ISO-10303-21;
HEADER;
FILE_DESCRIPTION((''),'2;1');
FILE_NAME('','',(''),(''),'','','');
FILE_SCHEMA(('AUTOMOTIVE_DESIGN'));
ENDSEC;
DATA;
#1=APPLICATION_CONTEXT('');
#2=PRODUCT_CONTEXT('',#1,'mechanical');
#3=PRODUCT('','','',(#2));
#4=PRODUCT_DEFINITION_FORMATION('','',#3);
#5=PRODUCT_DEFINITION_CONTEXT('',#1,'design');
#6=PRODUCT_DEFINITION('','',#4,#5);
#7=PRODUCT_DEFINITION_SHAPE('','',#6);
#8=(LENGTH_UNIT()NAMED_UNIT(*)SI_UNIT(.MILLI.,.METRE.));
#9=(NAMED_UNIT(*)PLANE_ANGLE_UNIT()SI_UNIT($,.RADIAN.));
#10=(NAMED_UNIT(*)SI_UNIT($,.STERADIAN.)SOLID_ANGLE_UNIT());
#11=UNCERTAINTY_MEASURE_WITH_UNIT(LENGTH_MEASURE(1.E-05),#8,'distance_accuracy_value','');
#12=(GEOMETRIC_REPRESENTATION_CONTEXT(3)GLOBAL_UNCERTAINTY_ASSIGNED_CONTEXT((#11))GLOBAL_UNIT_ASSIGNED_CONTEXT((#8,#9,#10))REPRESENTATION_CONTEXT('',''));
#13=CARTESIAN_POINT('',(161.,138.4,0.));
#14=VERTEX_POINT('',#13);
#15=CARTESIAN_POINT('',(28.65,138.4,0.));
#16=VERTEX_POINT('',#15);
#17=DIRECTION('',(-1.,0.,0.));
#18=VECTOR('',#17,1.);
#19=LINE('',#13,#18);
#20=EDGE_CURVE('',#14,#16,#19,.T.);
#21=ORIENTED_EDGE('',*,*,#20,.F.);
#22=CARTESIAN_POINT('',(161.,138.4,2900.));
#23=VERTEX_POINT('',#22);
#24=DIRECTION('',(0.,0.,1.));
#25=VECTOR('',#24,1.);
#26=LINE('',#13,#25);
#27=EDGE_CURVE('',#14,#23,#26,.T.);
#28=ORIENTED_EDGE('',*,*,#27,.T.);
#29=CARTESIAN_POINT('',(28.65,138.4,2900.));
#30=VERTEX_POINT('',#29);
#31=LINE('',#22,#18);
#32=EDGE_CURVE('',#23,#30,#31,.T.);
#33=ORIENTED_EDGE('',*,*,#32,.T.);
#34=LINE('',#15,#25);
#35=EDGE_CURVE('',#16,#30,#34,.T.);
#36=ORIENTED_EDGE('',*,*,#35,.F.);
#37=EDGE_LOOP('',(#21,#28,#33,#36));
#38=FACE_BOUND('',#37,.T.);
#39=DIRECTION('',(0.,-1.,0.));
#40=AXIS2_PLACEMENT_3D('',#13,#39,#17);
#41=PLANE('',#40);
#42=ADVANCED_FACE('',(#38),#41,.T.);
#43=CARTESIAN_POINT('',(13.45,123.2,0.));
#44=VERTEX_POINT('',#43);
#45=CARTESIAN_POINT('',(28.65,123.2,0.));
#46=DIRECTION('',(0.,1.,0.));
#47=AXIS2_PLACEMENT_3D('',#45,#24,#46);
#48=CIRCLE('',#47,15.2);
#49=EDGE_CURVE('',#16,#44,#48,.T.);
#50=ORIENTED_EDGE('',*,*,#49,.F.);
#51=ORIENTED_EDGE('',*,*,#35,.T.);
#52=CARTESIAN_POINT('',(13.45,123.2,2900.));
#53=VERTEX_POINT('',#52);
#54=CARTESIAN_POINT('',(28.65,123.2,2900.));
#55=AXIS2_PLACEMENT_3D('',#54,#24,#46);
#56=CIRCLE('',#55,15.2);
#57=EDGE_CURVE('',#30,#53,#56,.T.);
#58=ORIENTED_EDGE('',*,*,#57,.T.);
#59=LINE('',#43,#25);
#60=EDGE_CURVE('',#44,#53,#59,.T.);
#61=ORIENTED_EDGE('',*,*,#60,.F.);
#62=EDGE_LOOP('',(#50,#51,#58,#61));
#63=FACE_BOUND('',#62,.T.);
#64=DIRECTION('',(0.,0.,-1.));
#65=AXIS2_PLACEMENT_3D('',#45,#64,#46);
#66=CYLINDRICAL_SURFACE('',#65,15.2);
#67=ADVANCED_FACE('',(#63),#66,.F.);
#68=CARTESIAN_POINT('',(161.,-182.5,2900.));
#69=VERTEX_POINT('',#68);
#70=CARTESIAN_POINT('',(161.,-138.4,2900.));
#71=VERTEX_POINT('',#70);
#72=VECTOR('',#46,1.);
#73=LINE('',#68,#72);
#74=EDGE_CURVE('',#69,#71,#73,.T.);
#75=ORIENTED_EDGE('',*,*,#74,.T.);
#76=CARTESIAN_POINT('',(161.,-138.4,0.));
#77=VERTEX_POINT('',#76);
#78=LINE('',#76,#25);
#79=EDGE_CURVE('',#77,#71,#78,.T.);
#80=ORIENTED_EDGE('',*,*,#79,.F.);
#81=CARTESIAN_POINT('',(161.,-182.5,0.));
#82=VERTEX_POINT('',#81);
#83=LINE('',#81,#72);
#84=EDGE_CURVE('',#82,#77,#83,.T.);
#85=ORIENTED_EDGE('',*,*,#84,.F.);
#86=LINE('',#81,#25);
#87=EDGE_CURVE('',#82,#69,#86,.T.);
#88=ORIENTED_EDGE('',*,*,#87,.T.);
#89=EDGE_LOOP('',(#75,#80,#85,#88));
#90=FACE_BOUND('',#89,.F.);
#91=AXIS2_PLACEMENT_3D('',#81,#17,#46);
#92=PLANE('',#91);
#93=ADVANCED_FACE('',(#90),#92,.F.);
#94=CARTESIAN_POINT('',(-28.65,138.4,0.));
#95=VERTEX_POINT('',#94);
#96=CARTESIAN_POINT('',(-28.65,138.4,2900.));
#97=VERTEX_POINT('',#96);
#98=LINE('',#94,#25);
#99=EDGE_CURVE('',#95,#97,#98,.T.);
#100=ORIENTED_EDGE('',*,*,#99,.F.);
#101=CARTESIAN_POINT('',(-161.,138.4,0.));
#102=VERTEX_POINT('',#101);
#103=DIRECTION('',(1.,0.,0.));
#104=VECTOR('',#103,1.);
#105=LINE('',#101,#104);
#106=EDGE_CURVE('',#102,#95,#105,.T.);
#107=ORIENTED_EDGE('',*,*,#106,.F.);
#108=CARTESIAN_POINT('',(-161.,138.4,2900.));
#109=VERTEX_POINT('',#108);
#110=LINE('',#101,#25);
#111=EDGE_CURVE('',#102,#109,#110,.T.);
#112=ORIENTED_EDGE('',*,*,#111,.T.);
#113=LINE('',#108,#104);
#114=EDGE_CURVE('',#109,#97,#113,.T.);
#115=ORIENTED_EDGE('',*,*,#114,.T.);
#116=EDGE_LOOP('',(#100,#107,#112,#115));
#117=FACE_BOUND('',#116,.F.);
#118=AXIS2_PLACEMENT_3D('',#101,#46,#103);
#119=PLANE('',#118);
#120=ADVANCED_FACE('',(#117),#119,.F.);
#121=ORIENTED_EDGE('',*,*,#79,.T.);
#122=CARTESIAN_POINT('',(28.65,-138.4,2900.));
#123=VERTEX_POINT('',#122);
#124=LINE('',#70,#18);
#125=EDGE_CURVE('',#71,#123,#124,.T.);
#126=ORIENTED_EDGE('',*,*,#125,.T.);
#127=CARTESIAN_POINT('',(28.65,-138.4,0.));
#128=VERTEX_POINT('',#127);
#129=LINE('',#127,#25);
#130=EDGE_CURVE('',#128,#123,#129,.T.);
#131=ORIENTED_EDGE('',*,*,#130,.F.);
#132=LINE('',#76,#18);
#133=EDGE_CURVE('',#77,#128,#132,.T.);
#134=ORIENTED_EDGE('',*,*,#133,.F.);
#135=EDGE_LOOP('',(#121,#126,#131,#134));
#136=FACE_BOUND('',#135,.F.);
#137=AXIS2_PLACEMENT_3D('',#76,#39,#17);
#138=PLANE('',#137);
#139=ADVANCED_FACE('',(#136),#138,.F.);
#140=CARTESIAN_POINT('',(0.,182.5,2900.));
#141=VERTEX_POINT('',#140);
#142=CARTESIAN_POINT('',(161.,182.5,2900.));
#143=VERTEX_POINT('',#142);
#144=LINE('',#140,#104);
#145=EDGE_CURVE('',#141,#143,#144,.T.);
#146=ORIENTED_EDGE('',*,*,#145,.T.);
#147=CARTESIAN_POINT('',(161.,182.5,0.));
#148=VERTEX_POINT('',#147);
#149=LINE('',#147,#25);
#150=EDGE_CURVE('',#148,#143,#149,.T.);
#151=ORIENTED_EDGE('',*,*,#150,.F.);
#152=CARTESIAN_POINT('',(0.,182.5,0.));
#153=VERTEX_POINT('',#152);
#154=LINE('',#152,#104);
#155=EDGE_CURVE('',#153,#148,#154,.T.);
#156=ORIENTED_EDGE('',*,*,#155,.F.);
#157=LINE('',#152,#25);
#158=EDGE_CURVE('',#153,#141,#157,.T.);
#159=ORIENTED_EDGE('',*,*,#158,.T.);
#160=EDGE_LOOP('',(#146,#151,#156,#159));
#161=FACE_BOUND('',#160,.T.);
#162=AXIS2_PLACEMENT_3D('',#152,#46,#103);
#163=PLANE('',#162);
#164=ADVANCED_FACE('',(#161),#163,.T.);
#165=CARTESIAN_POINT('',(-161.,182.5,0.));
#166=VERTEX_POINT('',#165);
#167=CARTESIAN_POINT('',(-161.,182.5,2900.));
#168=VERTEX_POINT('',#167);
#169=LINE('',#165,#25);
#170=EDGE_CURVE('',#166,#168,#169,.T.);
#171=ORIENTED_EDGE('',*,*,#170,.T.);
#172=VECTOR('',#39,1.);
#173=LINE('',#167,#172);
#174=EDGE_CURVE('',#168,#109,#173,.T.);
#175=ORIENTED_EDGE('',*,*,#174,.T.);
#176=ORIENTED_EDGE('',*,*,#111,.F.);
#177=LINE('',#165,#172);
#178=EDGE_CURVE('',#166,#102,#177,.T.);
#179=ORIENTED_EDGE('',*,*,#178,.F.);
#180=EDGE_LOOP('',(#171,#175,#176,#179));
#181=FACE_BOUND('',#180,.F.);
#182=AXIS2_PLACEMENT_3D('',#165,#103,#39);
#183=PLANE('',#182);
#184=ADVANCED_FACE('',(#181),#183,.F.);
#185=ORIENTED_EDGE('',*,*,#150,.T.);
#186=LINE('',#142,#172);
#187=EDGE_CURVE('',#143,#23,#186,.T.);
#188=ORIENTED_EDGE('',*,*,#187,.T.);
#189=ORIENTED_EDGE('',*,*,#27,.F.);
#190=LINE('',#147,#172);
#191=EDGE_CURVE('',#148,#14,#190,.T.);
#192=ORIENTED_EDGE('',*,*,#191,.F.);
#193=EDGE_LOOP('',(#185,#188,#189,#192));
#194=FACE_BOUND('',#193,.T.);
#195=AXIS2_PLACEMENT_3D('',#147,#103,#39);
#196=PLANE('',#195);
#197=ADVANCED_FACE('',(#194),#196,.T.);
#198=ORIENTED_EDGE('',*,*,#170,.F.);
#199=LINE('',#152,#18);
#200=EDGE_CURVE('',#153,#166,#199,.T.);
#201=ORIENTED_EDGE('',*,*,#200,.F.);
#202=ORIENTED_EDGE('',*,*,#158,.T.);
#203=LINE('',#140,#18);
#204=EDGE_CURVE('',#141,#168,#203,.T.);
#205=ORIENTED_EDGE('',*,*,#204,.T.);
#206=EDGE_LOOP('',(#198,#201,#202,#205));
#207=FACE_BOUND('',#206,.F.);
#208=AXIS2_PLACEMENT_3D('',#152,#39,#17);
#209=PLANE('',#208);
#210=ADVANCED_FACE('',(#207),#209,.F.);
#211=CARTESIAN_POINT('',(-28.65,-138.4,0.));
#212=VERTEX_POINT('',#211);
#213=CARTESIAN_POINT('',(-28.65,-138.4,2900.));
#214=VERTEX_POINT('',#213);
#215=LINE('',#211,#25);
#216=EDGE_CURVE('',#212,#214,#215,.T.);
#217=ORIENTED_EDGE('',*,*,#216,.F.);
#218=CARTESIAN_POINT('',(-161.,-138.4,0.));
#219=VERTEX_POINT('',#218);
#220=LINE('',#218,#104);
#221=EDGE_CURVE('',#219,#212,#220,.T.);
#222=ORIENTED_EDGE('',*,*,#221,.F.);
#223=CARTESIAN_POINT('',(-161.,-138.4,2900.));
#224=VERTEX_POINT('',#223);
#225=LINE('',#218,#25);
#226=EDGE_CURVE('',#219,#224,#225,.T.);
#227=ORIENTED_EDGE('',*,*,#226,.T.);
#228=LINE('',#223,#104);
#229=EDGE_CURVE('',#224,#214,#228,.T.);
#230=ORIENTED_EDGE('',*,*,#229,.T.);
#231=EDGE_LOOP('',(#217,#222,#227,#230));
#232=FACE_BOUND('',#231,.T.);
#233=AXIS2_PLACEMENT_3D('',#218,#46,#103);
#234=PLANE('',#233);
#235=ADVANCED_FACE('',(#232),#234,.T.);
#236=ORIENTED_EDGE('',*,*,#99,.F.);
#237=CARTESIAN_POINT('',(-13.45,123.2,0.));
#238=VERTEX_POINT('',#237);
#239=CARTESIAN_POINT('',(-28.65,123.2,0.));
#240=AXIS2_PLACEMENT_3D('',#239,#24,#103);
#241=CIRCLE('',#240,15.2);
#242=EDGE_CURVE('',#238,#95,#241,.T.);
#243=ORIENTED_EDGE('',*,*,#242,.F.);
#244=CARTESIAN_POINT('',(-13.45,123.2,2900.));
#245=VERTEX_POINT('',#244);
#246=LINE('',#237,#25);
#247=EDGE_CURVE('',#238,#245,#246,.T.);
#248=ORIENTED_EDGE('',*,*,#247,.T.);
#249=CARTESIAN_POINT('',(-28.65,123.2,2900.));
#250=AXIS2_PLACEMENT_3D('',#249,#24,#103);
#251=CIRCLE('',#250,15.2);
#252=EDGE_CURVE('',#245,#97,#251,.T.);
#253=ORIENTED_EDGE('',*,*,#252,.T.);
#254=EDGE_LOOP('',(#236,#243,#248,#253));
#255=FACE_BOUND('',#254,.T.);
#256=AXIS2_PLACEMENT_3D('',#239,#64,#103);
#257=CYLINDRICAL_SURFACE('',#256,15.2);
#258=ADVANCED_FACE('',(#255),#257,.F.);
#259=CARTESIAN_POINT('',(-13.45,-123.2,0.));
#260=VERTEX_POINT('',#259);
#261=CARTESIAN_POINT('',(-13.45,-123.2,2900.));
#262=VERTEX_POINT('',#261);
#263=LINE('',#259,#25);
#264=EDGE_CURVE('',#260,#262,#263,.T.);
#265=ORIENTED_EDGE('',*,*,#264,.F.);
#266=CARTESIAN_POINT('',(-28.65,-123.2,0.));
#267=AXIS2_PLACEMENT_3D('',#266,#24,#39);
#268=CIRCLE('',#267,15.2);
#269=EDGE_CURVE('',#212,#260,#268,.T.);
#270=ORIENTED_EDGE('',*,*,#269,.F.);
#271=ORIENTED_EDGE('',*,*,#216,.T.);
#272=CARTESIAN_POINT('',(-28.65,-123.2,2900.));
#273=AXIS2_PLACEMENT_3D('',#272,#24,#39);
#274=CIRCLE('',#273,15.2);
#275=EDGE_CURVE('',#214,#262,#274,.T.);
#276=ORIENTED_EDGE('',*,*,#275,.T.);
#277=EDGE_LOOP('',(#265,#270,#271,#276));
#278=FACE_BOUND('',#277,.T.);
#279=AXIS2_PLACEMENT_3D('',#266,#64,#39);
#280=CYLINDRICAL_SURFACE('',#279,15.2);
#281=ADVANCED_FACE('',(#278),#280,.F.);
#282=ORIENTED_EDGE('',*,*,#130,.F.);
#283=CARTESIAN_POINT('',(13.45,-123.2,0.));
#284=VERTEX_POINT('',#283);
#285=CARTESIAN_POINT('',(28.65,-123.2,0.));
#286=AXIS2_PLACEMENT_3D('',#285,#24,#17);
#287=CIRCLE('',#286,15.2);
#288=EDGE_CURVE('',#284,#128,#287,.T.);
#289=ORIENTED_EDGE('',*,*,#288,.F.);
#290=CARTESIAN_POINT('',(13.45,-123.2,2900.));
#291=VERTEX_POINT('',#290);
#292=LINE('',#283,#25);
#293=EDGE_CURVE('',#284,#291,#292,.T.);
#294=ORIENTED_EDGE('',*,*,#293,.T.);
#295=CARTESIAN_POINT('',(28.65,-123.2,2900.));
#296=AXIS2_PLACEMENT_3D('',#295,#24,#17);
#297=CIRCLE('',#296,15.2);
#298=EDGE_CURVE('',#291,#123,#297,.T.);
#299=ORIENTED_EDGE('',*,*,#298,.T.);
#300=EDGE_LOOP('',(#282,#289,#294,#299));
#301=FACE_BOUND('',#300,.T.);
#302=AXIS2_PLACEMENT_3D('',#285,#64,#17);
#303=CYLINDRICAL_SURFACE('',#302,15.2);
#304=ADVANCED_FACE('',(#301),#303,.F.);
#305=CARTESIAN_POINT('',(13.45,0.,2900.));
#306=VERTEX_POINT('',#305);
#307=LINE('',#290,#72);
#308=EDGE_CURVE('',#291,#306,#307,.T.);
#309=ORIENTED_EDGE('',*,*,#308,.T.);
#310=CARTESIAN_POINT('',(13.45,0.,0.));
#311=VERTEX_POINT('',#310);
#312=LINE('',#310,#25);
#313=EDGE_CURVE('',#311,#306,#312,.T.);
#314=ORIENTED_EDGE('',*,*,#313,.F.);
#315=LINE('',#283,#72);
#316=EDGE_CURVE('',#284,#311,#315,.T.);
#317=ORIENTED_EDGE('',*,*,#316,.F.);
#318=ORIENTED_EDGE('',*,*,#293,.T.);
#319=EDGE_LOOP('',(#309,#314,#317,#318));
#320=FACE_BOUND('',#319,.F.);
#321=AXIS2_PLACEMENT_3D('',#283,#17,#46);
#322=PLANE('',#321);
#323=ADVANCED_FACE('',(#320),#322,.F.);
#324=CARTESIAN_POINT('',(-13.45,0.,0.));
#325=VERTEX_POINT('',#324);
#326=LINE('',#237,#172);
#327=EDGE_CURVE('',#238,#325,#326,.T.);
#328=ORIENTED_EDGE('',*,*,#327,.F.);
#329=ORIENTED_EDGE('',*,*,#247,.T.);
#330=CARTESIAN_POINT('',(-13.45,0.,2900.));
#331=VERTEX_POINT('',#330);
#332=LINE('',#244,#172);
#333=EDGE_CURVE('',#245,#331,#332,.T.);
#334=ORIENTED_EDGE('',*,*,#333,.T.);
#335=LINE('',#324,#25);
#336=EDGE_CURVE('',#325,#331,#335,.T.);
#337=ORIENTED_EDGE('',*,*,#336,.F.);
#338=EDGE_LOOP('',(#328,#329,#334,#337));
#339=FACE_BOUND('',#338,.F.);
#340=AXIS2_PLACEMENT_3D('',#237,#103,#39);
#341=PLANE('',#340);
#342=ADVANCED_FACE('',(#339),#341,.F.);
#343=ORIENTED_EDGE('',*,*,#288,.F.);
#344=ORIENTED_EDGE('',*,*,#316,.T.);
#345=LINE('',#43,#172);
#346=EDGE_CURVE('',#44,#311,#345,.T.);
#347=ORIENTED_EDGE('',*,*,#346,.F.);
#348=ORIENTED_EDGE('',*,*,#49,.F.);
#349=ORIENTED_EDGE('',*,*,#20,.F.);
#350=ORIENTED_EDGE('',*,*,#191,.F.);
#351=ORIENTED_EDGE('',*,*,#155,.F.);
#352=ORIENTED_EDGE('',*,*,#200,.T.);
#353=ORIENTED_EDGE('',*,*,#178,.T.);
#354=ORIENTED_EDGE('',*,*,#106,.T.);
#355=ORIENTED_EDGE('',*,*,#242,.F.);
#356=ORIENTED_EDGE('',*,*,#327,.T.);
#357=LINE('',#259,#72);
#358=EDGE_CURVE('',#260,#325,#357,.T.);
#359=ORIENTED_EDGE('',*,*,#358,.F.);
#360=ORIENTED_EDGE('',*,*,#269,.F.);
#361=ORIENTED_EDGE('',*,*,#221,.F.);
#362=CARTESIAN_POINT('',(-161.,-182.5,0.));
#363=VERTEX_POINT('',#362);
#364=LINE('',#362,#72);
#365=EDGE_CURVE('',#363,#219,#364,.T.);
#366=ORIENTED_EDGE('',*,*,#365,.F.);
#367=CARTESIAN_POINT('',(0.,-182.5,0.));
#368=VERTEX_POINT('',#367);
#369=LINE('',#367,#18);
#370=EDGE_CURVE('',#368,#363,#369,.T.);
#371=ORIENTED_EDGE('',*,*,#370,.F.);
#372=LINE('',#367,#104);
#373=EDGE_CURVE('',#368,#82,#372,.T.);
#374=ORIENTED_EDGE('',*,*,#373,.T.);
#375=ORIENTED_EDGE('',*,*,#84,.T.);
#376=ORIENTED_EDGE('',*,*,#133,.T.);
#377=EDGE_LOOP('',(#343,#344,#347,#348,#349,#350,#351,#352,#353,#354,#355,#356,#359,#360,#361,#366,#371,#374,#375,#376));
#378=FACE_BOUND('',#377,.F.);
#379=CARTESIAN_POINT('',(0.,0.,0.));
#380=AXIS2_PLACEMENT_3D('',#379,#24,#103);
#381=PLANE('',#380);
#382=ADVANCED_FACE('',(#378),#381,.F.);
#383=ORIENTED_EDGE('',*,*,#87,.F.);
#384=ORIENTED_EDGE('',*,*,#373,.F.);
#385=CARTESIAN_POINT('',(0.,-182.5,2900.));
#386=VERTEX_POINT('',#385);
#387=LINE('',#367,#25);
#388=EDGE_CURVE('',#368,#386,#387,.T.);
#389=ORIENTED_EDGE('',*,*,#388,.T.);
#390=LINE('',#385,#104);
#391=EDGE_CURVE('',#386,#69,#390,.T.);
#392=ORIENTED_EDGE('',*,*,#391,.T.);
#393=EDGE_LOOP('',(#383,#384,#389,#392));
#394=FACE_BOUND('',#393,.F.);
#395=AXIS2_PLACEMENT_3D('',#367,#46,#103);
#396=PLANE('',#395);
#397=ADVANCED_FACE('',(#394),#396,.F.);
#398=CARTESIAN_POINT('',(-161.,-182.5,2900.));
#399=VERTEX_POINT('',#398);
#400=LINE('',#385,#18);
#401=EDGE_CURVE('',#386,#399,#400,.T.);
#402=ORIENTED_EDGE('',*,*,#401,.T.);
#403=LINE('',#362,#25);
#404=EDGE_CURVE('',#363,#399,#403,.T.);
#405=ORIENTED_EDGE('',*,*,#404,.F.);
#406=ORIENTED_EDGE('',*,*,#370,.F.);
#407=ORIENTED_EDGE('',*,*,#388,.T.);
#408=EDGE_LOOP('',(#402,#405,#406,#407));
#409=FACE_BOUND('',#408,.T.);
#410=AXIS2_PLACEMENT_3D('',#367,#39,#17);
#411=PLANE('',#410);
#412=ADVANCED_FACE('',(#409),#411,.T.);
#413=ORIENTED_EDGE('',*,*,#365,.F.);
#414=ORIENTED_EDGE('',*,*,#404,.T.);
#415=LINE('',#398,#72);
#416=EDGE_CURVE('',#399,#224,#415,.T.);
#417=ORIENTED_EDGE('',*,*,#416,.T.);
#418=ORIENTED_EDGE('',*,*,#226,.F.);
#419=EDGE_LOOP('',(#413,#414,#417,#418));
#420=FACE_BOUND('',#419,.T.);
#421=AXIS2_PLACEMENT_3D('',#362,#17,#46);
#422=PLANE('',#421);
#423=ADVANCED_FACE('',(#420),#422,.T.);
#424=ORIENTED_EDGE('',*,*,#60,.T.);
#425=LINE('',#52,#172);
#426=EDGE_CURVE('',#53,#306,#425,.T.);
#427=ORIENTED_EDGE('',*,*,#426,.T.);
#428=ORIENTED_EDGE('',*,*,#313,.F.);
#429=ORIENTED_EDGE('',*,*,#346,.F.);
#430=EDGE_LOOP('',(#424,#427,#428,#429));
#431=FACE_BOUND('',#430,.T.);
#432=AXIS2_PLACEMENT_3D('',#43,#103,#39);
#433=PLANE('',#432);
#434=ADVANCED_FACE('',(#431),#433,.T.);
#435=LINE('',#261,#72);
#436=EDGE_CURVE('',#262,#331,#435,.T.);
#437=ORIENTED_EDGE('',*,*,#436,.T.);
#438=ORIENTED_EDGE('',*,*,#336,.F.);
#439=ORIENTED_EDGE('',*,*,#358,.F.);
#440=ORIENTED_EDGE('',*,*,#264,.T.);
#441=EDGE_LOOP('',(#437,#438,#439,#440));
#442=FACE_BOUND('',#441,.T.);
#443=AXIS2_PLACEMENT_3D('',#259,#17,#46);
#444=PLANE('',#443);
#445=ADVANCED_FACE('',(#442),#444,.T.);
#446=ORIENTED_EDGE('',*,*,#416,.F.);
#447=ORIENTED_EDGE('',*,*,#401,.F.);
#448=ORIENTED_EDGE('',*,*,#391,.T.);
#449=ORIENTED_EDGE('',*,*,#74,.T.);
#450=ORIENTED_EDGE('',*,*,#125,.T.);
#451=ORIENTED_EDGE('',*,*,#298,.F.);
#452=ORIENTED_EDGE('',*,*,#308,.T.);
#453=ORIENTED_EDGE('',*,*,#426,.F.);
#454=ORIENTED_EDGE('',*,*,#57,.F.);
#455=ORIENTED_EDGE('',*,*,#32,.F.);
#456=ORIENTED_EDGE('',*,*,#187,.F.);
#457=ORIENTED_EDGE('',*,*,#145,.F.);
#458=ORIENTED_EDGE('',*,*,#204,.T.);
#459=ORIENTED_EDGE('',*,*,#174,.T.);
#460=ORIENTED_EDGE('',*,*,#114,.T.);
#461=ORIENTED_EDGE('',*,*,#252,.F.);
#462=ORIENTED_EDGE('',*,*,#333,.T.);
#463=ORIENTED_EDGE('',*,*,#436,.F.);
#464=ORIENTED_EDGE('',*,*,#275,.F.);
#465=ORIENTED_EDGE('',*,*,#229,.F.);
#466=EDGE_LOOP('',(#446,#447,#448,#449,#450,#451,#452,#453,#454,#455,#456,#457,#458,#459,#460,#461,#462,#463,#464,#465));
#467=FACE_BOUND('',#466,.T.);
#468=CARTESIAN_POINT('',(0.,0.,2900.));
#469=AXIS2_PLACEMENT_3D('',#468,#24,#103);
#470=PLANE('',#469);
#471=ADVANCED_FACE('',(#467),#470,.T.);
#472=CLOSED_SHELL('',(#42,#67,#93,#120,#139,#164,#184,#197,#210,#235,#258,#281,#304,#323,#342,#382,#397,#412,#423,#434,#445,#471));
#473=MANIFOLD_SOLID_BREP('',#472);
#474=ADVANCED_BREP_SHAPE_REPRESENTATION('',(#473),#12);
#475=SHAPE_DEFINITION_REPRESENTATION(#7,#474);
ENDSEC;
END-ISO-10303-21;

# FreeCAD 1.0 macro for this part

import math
import FreeCAD as App
import Part
import Sketcher

doc = App.newDocument("Part")
body = doc.addObject("PartDesign::Body", "Body")

# Sketch on XY plane
sketch1 = body.newObject("Sketcher::SketchObject", "Sketch")
sketch1.AttachmentSupport = (doc.getObject("XY_Plane"), [""])
sketch1.MapMode = "FlatFace"
sketch1.addGeometry([
    Part.LineSegment(App.Vector(-161, -138, 0), App.Vector(-161, -182, 0)),  # 0
    Part.LineSegment(App.Vector(-161, -182, 0), App.Vector(161, -182, 0)),  # 1
    Part.LineSegment(App.Vector(161, -182, 0), App.Vector(161, -138, 0)),  # 2
    Part.LineSegment(App.Vector(161, -138, 0), App.Vector(29, -138, 0)),  # 3
    Part.ArcOfCircle(Part.Circle(App.Vector(29, -123, 0), App.Vector(0, 0, 1), 15), math.radians(180), math.radians(270)),  # 4
    Part.LineSegment(App.Vector(13, -123, 0), App.Vector(13, 123, 0)),  # 5
    Part.ArcOfCircle(Part.Circle(App.Vector(29, 123, 0), App.Vector(0, 0, 1), 15), math.radians(90), math.radians(180)),  # 6
    Part.LineSegment(App.Vector(29, 138, 0), App.Vector(161, 138, 0)),  # 7
    Part.LineSegment(App.Vector(161, 138, 0), App.Vector(161, 182, 0)),  # 8
    Part.LineSegment(App.Vector(161, 182, 0), App.Vector(-161, 182, 0)),  # 9
    Part.LineSegment(App.Vector(-161, 182, 0), App.Vector(-161, 138, 0)),  # 10
    Part.LineSegment(App.Vector(-161, 138, 0), App.Vector(-29, 138, 0)),  # 11
    Part.ArcOfCircle(Part.Circle(App.Vector(-29, 123, 0), App.Vector(0, 0, 1), 15), math.radians(0), math.radians(90)),  # 12
    Part.LineSegment(App.Vector(-13, 123, 0), App.Vector(-13, -123, 0)),  # 13
    Part.ArcOfCircle(Part.Circle(App.Vector(-29, -123, 0), App.Vector(0, 0, 1), 15), math.radians(-90), math.radians(0)),  # 14
    Part.LineSegment(App.Vector(-29, -138, 0), App.Vector(-161, -138, 0)),  # 15
], False)
sketch1.addConstraint([
    Sketcher.Constraint("Coincident", 0, 2, 1, 1),
    Sketcher.Constraint("Coincident", 1, 2, 2, 1),
    Sketcher.Constraint("Coincident", 2, 2, 3, 1),
    Sketcher.Constraint("Tangent", 3, 2, 4, 2),
    Sketcher.Constraint("Tangent", 4, 1, 5, 1),
    Sketcher.Constraint("Tangent", 5, 2, 6, 2),
    Sketcher.Constraint("Tangent", 6, 1, 7, 1),
    Sketcher.Constraint("Coincident", 7, 2, 8, 1),
    Sketcher.Constraint("Coincident", 8, 2, 9, 1),
    Sketcher.Constraint("Coincident", 9, 2, 10, 1),
    Sketcher.Constraint("Coincident", 10, 2, 11, 1),
    Sketcher.Constraint("Tangent", 11, 2, 12, 2),
    Sketcher.Constraint("Tangent", 12, 1, 13, 1),
    Sketcher.Constraint("Tangent", 13, 2, 14, 2),
    Sketcher.Constraint("Tangent", 14, 1, 15, 1),
    Sketcher.Constraint("Coincident", 15, 2, 0, 1),
    Sketcher.Constraint("Vertical", 0),
    Sketcher.Constraint("Horizontal", 1),
    Sketcher.Constraint("Vertical", 2),
    Sketcher.Constraint("Horizontal", 3),
    Sketcher.Constraint("Vertical", 5),
    Sketcher.Constraint("Horizontal", 7),
    Sketcher.Constraint("Vertical", 8),
    Sketcher.Constraint("Horizontal", 9),
    Sketcher.Constraint("Vertical", 10),
    Sketcher.Constraint("Horizontal", 11),
    Sketcher.Constraint("Vertical", 13),
    Sketcher.Constraint("Horizontal", 15),
    Sketcher.Constraint("Equal", 4, 6),
    Sketcher.Constraint("Equal", 6, 12),
    Sketcher.Constraint("Equal", 12, 14),
    Sketcher.Constraint("Symmetric", 4, 3, 12, 3, -1, 1),
    Sketcher.Constraint("Symmetric", 0, 2, 8, 2, -1, 1),
    Sketcher.Constraint("Symmetric", 7, 2, 10, 2, -2),
    Sketcher.Constraint("Symmetric", 2, 2, 15, 2, -2),
    Sketcher.Constraint("Radius", 4, 15.2),
    Sketcher.Constraint("DistanceY", 0, 2, 0, 1, 44.1),
    Sketcher.Constraint("DistanceX", 0, 2, -1, 1, 161.0),
    Sketcher.Constraint("DistanceY", 0, 2, -1, 1, 182.5),
    Sketcher.Constraint("DistanceX", -1, 1, 4, 1, 13.45),
])
pad1 = body.newObject("PartDesign::Pad", "Pad")
pad1.Profile = sketch1
pad1.Length = 2900

doc.recompute()
